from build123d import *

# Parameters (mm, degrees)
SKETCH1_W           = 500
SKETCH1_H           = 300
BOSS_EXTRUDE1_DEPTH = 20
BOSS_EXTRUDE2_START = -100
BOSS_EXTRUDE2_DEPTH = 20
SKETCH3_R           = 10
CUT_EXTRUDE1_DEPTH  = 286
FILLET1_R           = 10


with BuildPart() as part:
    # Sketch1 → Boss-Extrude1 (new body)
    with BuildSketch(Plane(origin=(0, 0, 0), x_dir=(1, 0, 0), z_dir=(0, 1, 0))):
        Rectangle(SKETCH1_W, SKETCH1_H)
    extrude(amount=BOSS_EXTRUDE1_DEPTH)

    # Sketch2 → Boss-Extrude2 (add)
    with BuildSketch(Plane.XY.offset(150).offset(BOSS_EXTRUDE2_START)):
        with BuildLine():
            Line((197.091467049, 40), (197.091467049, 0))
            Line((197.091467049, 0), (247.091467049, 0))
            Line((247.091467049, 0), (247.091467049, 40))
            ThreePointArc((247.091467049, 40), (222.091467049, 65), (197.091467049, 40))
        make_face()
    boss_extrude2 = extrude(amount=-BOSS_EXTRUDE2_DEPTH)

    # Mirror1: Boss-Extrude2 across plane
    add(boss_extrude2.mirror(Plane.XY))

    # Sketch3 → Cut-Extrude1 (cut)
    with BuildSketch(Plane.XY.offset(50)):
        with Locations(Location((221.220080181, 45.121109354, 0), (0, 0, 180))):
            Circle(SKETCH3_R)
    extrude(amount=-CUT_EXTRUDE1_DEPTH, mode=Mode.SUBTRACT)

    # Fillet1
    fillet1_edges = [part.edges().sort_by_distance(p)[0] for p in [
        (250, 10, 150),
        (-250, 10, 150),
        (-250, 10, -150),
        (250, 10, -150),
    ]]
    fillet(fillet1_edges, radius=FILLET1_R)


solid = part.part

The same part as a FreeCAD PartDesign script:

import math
import FreeCAD as App
import Part
import Sketcher
from FreeCAD import Vector
Q = App.Units.Quantity


def edges_at(feature, points):
    """Names of the edges that pass closest to the given points."""
    edges = feature.Shape.Edges
    near = lambda p: min(range(len(edges)), key=lambda i: edges[i].distToShape(Part.Vertex(*p))[0])
    return sorted({f"Edge{near(p) + 1}" for p in points})


def add_polygon(sketch, points):
    """Adds a closed chain of lines whose ends are joined by coincident constraints."""
    first, n = sketch.GeometryCount, len(points)
    for a, b in zip(points, points[1:] + points[:1]):
        sketch.addGeometry(Part.LineSegment(App.Vector(*a, 0), App.Vector(*b, 0)), False)
    for i in range(n):
        sketch.addConstraint(Sketcher.Constraint("Coincident", first + i, 2, first + (i + 1) % n, 1))

doc = App.newDocument("Part")
body = doc.addObject("PartDesign::Body", "Body")

# Sketch on XZ plane
sketch1 = doc.addObject("Sketcher::SketchObject", "Sketch")
body.addObject(sketch1)
sketch1.AttachmentSupport = (doc.XZ_Plane, [""])
sketch1.MapMode = "FlatFace"
add_polygon(sketch1, [(-250, -150), (-250, 150), (250, 150), (250, -150)])  # lines 0-3
sketch1.addConstraint([
    Sketcher.Constraint("Vertical", 0),
    Sketcher.Constraint("Horizontal", 1),
    Sketcher.Constraint("Vertical", 2),
    Sketcher.Constraint("Horizontal", 3),
    Sketcher.Constraint("Symmetric", 0, 2, 2, 2, -1, 1),
    Sketcher.Constraint("DistanceX", 1, 1, 1, 2, Q("500 mm")),
    Sketcher.Constraint("DistanceY", 0, 1, 0, 2, Q("300 mm")),
])
pad1 = doc.addObject("PartDesign::Pad", "Pad")
body.addObject(pad1)
pad1.Profile = sketch1
pad1.Length = 20
pad1.Reversed = True

# Sketch on XY plane
sketch2 = doc.addObject("Sketcher::SketchObject", "Sketch001")
body.addObject(sketch2)
sketch2.AttachmentSupport = (doc.XY_Plane, [""])
sketch2.MapMode = "FlatFace"
sketch2.AttachmentOffset = App.Placement(Vector(0, 0, 50), App.Rotation())
sketch2.addGeometry([
    Part.LineSegment(Vector(197, 40, 0), Vector(197, 0, 0)),
    Part.LineSegment(Vector(197, 0, 0), Vector(247, 0, 0)),
    Part.LineSegment(Vector(247, 0, 0), Vector(247, 40, 0)),
    Part.ArcOfCircle(Part.Circle(Vector(222, 40, 0), Vector(0, 0, 1), 25), math.radians(0), math.radians(180)),
], False)
sketch2.addConstraint([
    Sketcher.Constraint("Coincident", 0, 2, 1, 1),
    Sketcher.Constraint("Coincident", 1, 2, 2, 1),
    Sketcher.Constraint("Tangent", 2, 2, 3, 1),
    Sketcher.Constraint("Tangent", 3, 2, 0, 1),
    Sketcher.Constraint("Vertical", 0),
    Sketcher.Constraint("Horizontal", 1),
    Sketcher.Constraint("Vertical", 2),
    Sketcher.Constraint("PointOnObject", 0, 2, -1),
    Sketcher.Constraint("Radius", 3, Q("25 mm")),
    Sketcher.Constraint("DistanceY", 0, 2, 0, 1, Q("40 mm")),
    Sketcher.Constraint("DistanceX", -1, 1, 3, 3, Q("222.091467 mm")),
])
pad2 = doc.addObject("PartDesign::Pad", "Pad001")
body.addObject(pad2)
pad2.Profile = sketch2
pad2.Length = 20
pad2.Reversed = True
doc.recompute()

mirrored = doc.addObject("PartDesign::Mirrored", "Mirrored")
body.addObject(mirrored)
mirrored.Originals = [pad2]
mirrored.MirrorPlane = (doc.XY_Plane, [""])
body.Tip = mirrored

# Sketch on XY plane
sketch3 = doc.addObject("Sketcher::SketchObject", "Sketch002")
body.addObject(sketch3)
sketch3.AttachmentSupport = (doc.XY_Plane, [""])
sketch3.MapMode = "FlatFace"
sketch3.AttachmentOffset = App.Placement(Vector(0, 0, 50), App.Rotation())
sketch3.addGeometry(Part.Circle(Vector(221, 45, 0), Vector(0, 0, 1), 10), False)
sketch3.addConstraint([
    Sketcher.Constraint("Diameter", 0, Q("20 mm")),
    Sketcher.Constraint("DistanceX", -1, 1, 0, 3, Q("221.22008 mm")),
    Sketcher.Constraint("DistanceY", -1, 1, 0, 3, Q("45.121109 mm")),
])
pocket1 = doc.addObject("PartDesign::Pocket", "Pocket")
body.addObject(pocket1)
pocket1.Profile = sketch3
pocket1.Length = 286
doc.recompute()

fillet = doc.addObject("PartDesign::Fillet", "Fillet")
body.addObject(fillet)
fillet.Base = (pocket1, edges_at(pocket1, [
    (250, 10, 150),
    (-250, 10, 150),
    (-250, 10, -150),
    (250, 10, -150),
]))
fillet.Radius = 10

doc.recompute()
